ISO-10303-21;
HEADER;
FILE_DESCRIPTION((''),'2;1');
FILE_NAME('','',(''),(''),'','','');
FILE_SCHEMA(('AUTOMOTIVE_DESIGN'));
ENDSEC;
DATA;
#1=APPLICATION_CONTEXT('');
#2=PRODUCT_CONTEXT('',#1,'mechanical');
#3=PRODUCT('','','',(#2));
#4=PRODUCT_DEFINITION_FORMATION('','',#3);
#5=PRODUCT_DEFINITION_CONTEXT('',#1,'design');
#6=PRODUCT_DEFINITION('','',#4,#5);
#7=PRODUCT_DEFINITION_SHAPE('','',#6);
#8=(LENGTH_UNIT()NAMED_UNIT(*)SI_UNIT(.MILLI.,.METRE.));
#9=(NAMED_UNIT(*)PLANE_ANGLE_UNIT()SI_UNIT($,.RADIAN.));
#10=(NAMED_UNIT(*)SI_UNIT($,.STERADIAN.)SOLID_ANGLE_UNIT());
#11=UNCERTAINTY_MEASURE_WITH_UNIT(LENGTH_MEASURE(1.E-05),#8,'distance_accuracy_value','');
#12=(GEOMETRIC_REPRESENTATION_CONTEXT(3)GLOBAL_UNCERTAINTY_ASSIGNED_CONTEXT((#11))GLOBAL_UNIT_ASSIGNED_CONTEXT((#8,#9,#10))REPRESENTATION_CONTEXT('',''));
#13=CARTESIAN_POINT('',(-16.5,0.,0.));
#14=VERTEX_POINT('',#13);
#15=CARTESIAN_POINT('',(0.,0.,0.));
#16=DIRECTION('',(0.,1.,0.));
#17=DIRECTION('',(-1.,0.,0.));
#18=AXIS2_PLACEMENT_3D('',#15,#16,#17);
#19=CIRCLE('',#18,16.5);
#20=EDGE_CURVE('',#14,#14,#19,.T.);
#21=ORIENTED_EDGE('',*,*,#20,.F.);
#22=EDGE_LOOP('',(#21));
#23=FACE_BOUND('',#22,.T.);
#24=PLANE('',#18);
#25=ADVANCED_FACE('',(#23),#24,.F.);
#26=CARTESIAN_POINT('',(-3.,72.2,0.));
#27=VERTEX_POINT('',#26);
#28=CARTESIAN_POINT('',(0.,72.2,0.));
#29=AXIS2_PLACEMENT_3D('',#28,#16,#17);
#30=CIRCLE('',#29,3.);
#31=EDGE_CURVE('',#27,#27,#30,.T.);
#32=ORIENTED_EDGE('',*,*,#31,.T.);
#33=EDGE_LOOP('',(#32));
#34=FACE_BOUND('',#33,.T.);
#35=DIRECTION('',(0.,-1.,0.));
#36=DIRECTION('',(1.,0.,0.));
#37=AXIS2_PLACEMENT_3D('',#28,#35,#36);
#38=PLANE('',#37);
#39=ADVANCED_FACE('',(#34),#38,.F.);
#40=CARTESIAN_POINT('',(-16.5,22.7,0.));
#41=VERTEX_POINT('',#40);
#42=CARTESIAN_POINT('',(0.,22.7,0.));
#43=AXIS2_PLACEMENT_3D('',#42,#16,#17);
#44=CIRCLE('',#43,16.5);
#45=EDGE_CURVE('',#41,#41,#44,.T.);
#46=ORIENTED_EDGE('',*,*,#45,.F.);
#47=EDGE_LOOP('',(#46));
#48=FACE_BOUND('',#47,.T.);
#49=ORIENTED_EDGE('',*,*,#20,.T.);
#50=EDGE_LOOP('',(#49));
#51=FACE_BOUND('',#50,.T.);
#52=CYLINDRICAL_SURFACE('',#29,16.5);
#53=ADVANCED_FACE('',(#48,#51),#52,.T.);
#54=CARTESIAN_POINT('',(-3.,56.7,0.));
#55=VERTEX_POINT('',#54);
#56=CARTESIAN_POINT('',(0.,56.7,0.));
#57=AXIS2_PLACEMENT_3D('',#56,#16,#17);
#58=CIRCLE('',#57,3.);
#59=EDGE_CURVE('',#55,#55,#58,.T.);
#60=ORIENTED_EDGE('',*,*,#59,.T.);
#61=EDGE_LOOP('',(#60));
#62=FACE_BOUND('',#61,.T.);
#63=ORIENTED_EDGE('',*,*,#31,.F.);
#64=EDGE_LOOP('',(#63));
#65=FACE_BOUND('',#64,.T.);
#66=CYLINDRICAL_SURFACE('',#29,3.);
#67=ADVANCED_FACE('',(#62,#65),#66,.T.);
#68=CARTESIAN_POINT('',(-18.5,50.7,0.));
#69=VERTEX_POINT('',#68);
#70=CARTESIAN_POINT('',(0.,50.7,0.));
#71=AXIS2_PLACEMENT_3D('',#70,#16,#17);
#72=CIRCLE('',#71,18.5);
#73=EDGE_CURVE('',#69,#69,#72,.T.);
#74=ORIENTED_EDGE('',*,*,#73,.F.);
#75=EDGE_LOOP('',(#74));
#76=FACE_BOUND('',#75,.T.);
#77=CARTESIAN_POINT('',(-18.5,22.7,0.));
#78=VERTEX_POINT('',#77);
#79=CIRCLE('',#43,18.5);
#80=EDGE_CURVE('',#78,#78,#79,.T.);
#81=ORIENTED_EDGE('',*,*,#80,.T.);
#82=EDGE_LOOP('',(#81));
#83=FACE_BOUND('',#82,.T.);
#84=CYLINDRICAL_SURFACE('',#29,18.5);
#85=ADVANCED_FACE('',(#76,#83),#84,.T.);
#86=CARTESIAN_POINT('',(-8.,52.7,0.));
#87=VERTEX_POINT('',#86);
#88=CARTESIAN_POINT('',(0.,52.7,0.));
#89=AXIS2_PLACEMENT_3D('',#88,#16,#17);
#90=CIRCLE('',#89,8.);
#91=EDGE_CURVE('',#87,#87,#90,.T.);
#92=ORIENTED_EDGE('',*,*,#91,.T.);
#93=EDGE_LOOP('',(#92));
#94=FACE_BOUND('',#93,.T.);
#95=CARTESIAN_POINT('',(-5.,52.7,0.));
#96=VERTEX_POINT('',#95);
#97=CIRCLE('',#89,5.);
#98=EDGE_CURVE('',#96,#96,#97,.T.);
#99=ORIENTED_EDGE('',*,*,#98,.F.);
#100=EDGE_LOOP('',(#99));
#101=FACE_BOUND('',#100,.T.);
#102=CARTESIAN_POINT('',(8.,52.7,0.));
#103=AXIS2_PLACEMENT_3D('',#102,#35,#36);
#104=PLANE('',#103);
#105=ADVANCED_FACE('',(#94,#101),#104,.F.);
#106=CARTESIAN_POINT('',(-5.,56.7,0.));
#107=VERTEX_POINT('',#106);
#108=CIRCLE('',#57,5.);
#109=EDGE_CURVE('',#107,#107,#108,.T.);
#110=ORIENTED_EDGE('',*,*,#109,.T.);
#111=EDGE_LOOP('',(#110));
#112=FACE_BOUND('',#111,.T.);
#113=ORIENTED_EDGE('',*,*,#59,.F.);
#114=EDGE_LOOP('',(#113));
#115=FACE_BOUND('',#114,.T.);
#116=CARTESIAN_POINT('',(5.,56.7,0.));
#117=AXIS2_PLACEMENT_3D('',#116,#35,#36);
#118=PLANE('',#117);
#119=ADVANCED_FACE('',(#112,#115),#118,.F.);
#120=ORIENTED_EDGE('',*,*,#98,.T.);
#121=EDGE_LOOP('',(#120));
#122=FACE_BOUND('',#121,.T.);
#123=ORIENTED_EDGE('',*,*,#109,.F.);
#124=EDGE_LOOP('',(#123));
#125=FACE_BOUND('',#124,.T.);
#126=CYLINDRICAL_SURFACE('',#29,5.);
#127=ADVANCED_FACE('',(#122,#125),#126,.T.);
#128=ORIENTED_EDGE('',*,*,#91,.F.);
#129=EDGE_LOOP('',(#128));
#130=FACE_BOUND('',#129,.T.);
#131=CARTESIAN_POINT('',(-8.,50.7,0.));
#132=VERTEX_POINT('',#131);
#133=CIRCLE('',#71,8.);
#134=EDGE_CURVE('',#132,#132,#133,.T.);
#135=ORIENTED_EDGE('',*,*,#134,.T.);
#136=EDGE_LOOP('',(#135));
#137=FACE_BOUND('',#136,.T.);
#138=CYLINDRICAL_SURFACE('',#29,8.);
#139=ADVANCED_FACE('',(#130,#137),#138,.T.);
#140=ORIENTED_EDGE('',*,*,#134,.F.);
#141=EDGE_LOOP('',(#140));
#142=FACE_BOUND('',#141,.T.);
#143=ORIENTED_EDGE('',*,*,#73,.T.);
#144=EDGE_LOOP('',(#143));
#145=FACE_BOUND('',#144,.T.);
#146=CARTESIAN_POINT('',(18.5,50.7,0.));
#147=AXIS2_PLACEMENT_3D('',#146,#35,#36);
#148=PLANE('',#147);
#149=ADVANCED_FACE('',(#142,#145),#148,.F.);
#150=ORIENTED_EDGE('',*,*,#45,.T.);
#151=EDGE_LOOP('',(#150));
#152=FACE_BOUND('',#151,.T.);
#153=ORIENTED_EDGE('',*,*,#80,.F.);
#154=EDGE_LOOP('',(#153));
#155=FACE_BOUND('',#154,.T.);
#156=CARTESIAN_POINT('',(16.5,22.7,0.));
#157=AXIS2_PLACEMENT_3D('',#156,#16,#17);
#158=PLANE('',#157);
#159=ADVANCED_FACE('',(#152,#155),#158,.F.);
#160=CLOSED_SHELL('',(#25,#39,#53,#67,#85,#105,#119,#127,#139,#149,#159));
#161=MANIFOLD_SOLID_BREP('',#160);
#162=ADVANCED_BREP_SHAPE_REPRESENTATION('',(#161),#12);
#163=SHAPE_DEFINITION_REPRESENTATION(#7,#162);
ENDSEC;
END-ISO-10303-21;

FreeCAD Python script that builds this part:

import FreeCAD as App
import Part
import Sketcher
from FreeCAD import Vector
Q = App.Units.Quantity


def add_polygon(sketch, points):
    """Adds a closed chain of lines whose ends are joined by coincident constraints."""
    first, n = sketch.GeometryCount, len(points)
    for a, b in zip(points, points[1:] + points[:1]):
        sketch.addGeometry(Part.LineSegment(App.Vector(*a, 0), App.Vector(*b, 0)), False)
    for i in range(n):
        sketch.addConstraint(Sketcher.Constraint("Coincident", first + i, 2, first + (i + 1) % n, 1))

doc = App.newDocument("Part")
body = doc.addObject("PartDesign::Body", "Body")

sketch1 = body.newObject("Sketcher::SketchObject", "Sketch")
sketch1.AttachmentSupport = (doc.getObject("XY_Plane"), [""])
sketch1.MapMode = "FlatFace"
add_polygon(sketch1, [(0, 0), (16.5, 0), (16.5, 22.7), (18.5, 22.7), (18.5, 50.7), (8, 50.7), (8, 52.7), (5, 52.7), (5, 56.7), (3, 56.7), (3, 72.2), (0, 72.2)])
sketch1.addConstraint([
    Sketcher.Constraint("Horizontal", 0),
    Sketcher.Constraint("Vertical", 1),
    Sketcher.Constraint("Horizontal", 2),
    Sketcher.Constraint("Vertical", 3),
    Sketcher.Constraint("Horizontal", 4),
    Sketcher.Constraint("Vertical", 5),
    Sketcher.Constraint("Horizontal", 6),
    Sketcher.Constraint("Vertical", 7),
    Sketcher.Constraint("Horizontal", 8),
    Sketcher.Constraint("Vertical", 9),
    Sketcher.Constraint("Horizontal", 10),
    Sketcher.Constraint("Vertical", 11),
    Sketcher.Constraint("Coincident", 11, 2, -1, 1),
    Sketcher.Constraint("Equal", 2, 8),
    Sketcher.Constraint("Equal", 6, 10),
    Sketcher.Constraint("Equal", 8, 5),
    Sketcher.Constraint("DistanceX", 2, 1, 2, 2, Q("2 mm")),
    Sketcher.Constraint("DistanceX", 6, 2, 6, 1, Q("3 mm")),
    Sketcher.Constraint("DistanceY", 3, 1, 3, 2, Q("28 mm")),
    Sketcher.Constraint("DistanceY", 7, 1, 7, 2, Q("4 mm")),
    Sketcher.Constraint("DistanceX", 0, 1, 0, 2, Q("16.5 mm")),
    Sketcher.Constraint("DistanceY", 1, 1, 1, 2, Q("22.7 mm")),
    Sketcher.Constraint("DistanceY", 9, 1, 9, 2, Q("15.5 mm")),
])
revolution = body.newObject("PartDesign::Revolution", "Revolution")
revolution.Profile = sketch1
revolution.ReferenceAxis = (sketch1, ["V_Axis"])
revolution.Angle = 360

doc.recompute()
